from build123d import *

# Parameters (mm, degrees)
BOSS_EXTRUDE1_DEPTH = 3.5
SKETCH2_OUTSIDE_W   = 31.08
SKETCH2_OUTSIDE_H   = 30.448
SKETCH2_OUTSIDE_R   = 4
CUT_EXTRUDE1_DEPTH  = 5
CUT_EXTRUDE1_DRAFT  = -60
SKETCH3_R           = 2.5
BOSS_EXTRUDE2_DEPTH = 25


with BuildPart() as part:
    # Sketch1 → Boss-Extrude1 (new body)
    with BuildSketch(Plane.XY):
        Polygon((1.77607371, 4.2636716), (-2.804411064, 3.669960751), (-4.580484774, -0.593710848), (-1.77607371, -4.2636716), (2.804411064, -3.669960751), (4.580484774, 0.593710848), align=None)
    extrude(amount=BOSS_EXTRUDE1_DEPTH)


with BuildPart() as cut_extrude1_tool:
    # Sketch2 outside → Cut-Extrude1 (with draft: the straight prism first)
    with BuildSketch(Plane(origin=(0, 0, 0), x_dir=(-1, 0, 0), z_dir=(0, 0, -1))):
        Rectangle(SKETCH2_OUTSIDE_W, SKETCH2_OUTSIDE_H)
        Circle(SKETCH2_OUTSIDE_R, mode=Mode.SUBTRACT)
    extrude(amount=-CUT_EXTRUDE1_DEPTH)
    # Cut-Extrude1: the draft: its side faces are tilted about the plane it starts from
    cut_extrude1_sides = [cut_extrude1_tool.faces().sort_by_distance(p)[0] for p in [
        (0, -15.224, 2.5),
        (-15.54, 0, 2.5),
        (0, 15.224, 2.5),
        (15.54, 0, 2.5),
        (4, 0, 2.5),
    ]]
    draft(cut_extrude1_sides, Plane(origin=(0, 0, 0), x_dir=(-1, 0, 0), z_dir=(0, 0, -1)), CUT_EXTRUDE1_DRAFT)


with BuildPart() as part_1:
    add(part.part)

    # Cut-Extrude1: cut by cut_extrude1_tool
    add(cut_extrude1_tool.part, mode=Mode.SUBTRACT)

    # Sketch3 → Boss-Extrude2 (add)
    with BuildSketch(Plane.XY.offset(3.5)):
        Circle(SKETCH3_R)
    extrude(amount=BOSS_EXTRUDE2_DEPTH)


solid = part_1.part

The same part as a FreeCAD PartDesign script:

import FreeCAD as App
import Part
import Sketcher
from FreeCAD import Vector
Q = App.Units.Quantity


def faces_at(feature, points):
    """Names of the faces that lie closest to the given points."""
    faces = feature.Shape.Faces
    near = lambda p: min(range(len(faces)), key=lambda i: faces[i].distToShape(Part.Vertex(*p))[0])
    return sorted({f"Face{near(p) + 1}" for p in points})

doc = App.newDocument("Part")
body = doc.addObject("PartDesign::Body", "Body")

sketch1 = body.newObject("Sketcher::SketchObject", "Sketch")
sketch1.AttachmentSupport = (doc.getObject("XY_Plane"), [""])
sketch1.MapMode = "FlatFace"
sketch1.addGeometry([
    Part.LineSegment(Vector(1.776074, 4.263672, 0), Vector(-2.804411, 3.669961, 0)),
    Part.LineSegment(Vector(-2.804411, 3.669961, 0), Vector(-4.580485, -0.593711, 0)),
    Part.LineSegment(Vector(-4.580485, -0.593711, 0), Vector(-1.776074, -4.263672, 0)),
    Part.LineSegment(Vector(-1.776074, -4.263672, 0), Vector(2.804411, -3.669961, 0)),
    Part.LineSegment(Vector(2.804411, -3.669961, 0), Vector(4.580485, 0.593711, 0)),
    Part.LineSegment(Vector(4.580485, 0.593711, 0), Vector(1.776074, 4.263672, 0)),
], False)
sketch1.addConstraint([
    Sketcher.Constraint("Coincident", 0, 2, 1, 1),
    Sketcher.Constraint("Coincident", 1, 2, 2, 1),
    Sketcher.Constraint("Coincident", 2, 2, 3, 1),
    Sketcher.Constraint("Coincident", 3, 2, 4, 1),
    Sketcher.Constraint("Coincident", 4, 2, 5, 1),
    Sketcher.Constraint("Coincident", 5, 2, 0, 1),
    Sketcher.Constraint("DistanceX", 0, 2, -1, 1, Q("2.804411 mm")),
    Sketcher.Constraint("DistanceY", -1, 1, 0, 2, Q("3.669961 mm")),
    Sketcher.Constraint("DistanceY", 1, 2, -1, 1, Q("0.593711 mm")),
    Sketcher.Constraint("DistanceY", 2, 2, -1, 1, Q("4.263672 mm")),
    Sketcher.Constraint("DistanceX", -1, 1, 3, 2, Q("2.804411 mm")),
    Sketcher.Constraint("DistanceY", 3, 2, -1, 1, Q("3.669961 mm")),
    Sketcher.Constraint("DistanceY", -1, 1, 4, 2, Q("0.593711 mm")),
    Sketcher.Constraint("DistanceY", -1, 1, 5, 2, Q("4.263672 mm")),
    Sketcher.Constraint("DistanceX", 1, 2, 2, 2, Q("2.804411 mm")),
    Sketcher.Constraint("DistanceX", 2, 2, 4, 2, Q("6.356558 mm")),
    Sketcher.Constraint("DistanceX", 5, 2, 4, 2, Q("2.804411 mm")),
    Sketcher.Constraint("Distance", 0, Q("4.618802 mm")),
])
pad1 = body.newObject("PartDesign::Pad", "Pad")
pad1.Profile = sketch1
pad1.Length = 3.5
body2 = doc.addObject("PartDesign::Body", "Body001")

sketch2 = body2.newObject("Sketcher::SketchObject", "Sketch001")
sketch2.AttachmentSupport = (doc.getObject("XY_Plane001"), [""])
sketch2.MapMode = "FlatFace"
sketch2.addGeometry([
    Part.LineSegment(Vector(15.54, 15.224, 0), Vector(15.54, -15.224, 0)),
    Part.LineSegment(Vector(15.54, -15.224, 0), Vector(-15.54, -15.224, 0)),
    Part.LineSegment(Vector(-15.54, -15.224, 0), Vector(-15.54, 15.224, 0)),
    Part.LineSegment(Vector(-15.54, 15.224, 0), Vector(15.54, 15.224, 0)),
    Part.Circle(Vector(0, 0, 0), Vector(0, 0, 1), 4),
], False)
sketch2.addConstraint([
    Sketcher.Constraint("Coincident", 0, 2, 1, 1),
    Sketcher.Constraint("Coincident", 1, 2, 2, 1),
    Sketcher.Constraint("Coincident", 2, 2, 3, 1),
    Sketcher.Constraint("Coincident", 3, 2, 0, 1),
    Sketcher.Constraint("Vertical", 0),
    Sketcher.Constraint("Horizontal", 1),
    Sketcher.Constraint("Vertical", 2),
    Sketcher.Constraint("Horizontal", 3),
    Sketcher.Constraint("Coincident", 4, 3, -1, 1),
    Sketcher.Constraint("Symmetric", 0, 2, 2, 2, -1, 1),
    Sketcher.Constraint("Diameter", 4, Q("8 mm")),
    Sketcher.Constraint("DistanceX", 1, 2, 1, 1, Q("31.08 mm")),
    Sketcher.Constraint("DistanceY", 0, 2, 0, 1, Q("30.448 mm")),
])
pad2 = body2.newObject("PartDesign::Pad", "Pad001")
pad2.Profile = sketch2
pad2.Length = 5
doc.recompute()

draft = body2.newObject("PartDesign::Draft", "Draft")
draft.Base = (pad2, faces_at(pad2, [
    (0, -15.224, 2.5),
    (-15.54, 0, 2.5),
    (0, 15.224, 2.5),
    (15.54, 0, 2.5),
    (4, 0, 2.5),
]))
draft.NeutralPlane = (doc.getObject("XY_Plane001"), [""])
draft.Angle = 60
draft.Reversed = False
doc.recompute()

boolean = body.newObject("PartDesign::Boolean", "Boolean")
boolean.Type = "Cut"
boolean.addObjects([body2])

sketch3 = body.newObject("Sketcher::SketchObject", "Sketch002")
sketch3.AttachmentSupport = (doc.getObject("XY_Plane"), [""])
sketch3.MapMode = "FlatFace"
sketch3.AttachmentOffset = App.Placement(Vector(0, 0, 3.5), App.Rotation())
sketch3.addGeometry(Part.Circle(Vector(0, 0, 0), Vector(0, 0, 1), 2.5), False)
sketch3.addConstraint([
    Sketcher.Constraint("Coincident", 0, 3, -1, 1),
    Sketcher.Constraint("Diameter", 0, Q("5 mm")),
])
pad3 = body.newObject("PartDesign::Pad", "Pad002")
pad3.Profile = sketch3
pad3.Length = 25

doc.recompute()
